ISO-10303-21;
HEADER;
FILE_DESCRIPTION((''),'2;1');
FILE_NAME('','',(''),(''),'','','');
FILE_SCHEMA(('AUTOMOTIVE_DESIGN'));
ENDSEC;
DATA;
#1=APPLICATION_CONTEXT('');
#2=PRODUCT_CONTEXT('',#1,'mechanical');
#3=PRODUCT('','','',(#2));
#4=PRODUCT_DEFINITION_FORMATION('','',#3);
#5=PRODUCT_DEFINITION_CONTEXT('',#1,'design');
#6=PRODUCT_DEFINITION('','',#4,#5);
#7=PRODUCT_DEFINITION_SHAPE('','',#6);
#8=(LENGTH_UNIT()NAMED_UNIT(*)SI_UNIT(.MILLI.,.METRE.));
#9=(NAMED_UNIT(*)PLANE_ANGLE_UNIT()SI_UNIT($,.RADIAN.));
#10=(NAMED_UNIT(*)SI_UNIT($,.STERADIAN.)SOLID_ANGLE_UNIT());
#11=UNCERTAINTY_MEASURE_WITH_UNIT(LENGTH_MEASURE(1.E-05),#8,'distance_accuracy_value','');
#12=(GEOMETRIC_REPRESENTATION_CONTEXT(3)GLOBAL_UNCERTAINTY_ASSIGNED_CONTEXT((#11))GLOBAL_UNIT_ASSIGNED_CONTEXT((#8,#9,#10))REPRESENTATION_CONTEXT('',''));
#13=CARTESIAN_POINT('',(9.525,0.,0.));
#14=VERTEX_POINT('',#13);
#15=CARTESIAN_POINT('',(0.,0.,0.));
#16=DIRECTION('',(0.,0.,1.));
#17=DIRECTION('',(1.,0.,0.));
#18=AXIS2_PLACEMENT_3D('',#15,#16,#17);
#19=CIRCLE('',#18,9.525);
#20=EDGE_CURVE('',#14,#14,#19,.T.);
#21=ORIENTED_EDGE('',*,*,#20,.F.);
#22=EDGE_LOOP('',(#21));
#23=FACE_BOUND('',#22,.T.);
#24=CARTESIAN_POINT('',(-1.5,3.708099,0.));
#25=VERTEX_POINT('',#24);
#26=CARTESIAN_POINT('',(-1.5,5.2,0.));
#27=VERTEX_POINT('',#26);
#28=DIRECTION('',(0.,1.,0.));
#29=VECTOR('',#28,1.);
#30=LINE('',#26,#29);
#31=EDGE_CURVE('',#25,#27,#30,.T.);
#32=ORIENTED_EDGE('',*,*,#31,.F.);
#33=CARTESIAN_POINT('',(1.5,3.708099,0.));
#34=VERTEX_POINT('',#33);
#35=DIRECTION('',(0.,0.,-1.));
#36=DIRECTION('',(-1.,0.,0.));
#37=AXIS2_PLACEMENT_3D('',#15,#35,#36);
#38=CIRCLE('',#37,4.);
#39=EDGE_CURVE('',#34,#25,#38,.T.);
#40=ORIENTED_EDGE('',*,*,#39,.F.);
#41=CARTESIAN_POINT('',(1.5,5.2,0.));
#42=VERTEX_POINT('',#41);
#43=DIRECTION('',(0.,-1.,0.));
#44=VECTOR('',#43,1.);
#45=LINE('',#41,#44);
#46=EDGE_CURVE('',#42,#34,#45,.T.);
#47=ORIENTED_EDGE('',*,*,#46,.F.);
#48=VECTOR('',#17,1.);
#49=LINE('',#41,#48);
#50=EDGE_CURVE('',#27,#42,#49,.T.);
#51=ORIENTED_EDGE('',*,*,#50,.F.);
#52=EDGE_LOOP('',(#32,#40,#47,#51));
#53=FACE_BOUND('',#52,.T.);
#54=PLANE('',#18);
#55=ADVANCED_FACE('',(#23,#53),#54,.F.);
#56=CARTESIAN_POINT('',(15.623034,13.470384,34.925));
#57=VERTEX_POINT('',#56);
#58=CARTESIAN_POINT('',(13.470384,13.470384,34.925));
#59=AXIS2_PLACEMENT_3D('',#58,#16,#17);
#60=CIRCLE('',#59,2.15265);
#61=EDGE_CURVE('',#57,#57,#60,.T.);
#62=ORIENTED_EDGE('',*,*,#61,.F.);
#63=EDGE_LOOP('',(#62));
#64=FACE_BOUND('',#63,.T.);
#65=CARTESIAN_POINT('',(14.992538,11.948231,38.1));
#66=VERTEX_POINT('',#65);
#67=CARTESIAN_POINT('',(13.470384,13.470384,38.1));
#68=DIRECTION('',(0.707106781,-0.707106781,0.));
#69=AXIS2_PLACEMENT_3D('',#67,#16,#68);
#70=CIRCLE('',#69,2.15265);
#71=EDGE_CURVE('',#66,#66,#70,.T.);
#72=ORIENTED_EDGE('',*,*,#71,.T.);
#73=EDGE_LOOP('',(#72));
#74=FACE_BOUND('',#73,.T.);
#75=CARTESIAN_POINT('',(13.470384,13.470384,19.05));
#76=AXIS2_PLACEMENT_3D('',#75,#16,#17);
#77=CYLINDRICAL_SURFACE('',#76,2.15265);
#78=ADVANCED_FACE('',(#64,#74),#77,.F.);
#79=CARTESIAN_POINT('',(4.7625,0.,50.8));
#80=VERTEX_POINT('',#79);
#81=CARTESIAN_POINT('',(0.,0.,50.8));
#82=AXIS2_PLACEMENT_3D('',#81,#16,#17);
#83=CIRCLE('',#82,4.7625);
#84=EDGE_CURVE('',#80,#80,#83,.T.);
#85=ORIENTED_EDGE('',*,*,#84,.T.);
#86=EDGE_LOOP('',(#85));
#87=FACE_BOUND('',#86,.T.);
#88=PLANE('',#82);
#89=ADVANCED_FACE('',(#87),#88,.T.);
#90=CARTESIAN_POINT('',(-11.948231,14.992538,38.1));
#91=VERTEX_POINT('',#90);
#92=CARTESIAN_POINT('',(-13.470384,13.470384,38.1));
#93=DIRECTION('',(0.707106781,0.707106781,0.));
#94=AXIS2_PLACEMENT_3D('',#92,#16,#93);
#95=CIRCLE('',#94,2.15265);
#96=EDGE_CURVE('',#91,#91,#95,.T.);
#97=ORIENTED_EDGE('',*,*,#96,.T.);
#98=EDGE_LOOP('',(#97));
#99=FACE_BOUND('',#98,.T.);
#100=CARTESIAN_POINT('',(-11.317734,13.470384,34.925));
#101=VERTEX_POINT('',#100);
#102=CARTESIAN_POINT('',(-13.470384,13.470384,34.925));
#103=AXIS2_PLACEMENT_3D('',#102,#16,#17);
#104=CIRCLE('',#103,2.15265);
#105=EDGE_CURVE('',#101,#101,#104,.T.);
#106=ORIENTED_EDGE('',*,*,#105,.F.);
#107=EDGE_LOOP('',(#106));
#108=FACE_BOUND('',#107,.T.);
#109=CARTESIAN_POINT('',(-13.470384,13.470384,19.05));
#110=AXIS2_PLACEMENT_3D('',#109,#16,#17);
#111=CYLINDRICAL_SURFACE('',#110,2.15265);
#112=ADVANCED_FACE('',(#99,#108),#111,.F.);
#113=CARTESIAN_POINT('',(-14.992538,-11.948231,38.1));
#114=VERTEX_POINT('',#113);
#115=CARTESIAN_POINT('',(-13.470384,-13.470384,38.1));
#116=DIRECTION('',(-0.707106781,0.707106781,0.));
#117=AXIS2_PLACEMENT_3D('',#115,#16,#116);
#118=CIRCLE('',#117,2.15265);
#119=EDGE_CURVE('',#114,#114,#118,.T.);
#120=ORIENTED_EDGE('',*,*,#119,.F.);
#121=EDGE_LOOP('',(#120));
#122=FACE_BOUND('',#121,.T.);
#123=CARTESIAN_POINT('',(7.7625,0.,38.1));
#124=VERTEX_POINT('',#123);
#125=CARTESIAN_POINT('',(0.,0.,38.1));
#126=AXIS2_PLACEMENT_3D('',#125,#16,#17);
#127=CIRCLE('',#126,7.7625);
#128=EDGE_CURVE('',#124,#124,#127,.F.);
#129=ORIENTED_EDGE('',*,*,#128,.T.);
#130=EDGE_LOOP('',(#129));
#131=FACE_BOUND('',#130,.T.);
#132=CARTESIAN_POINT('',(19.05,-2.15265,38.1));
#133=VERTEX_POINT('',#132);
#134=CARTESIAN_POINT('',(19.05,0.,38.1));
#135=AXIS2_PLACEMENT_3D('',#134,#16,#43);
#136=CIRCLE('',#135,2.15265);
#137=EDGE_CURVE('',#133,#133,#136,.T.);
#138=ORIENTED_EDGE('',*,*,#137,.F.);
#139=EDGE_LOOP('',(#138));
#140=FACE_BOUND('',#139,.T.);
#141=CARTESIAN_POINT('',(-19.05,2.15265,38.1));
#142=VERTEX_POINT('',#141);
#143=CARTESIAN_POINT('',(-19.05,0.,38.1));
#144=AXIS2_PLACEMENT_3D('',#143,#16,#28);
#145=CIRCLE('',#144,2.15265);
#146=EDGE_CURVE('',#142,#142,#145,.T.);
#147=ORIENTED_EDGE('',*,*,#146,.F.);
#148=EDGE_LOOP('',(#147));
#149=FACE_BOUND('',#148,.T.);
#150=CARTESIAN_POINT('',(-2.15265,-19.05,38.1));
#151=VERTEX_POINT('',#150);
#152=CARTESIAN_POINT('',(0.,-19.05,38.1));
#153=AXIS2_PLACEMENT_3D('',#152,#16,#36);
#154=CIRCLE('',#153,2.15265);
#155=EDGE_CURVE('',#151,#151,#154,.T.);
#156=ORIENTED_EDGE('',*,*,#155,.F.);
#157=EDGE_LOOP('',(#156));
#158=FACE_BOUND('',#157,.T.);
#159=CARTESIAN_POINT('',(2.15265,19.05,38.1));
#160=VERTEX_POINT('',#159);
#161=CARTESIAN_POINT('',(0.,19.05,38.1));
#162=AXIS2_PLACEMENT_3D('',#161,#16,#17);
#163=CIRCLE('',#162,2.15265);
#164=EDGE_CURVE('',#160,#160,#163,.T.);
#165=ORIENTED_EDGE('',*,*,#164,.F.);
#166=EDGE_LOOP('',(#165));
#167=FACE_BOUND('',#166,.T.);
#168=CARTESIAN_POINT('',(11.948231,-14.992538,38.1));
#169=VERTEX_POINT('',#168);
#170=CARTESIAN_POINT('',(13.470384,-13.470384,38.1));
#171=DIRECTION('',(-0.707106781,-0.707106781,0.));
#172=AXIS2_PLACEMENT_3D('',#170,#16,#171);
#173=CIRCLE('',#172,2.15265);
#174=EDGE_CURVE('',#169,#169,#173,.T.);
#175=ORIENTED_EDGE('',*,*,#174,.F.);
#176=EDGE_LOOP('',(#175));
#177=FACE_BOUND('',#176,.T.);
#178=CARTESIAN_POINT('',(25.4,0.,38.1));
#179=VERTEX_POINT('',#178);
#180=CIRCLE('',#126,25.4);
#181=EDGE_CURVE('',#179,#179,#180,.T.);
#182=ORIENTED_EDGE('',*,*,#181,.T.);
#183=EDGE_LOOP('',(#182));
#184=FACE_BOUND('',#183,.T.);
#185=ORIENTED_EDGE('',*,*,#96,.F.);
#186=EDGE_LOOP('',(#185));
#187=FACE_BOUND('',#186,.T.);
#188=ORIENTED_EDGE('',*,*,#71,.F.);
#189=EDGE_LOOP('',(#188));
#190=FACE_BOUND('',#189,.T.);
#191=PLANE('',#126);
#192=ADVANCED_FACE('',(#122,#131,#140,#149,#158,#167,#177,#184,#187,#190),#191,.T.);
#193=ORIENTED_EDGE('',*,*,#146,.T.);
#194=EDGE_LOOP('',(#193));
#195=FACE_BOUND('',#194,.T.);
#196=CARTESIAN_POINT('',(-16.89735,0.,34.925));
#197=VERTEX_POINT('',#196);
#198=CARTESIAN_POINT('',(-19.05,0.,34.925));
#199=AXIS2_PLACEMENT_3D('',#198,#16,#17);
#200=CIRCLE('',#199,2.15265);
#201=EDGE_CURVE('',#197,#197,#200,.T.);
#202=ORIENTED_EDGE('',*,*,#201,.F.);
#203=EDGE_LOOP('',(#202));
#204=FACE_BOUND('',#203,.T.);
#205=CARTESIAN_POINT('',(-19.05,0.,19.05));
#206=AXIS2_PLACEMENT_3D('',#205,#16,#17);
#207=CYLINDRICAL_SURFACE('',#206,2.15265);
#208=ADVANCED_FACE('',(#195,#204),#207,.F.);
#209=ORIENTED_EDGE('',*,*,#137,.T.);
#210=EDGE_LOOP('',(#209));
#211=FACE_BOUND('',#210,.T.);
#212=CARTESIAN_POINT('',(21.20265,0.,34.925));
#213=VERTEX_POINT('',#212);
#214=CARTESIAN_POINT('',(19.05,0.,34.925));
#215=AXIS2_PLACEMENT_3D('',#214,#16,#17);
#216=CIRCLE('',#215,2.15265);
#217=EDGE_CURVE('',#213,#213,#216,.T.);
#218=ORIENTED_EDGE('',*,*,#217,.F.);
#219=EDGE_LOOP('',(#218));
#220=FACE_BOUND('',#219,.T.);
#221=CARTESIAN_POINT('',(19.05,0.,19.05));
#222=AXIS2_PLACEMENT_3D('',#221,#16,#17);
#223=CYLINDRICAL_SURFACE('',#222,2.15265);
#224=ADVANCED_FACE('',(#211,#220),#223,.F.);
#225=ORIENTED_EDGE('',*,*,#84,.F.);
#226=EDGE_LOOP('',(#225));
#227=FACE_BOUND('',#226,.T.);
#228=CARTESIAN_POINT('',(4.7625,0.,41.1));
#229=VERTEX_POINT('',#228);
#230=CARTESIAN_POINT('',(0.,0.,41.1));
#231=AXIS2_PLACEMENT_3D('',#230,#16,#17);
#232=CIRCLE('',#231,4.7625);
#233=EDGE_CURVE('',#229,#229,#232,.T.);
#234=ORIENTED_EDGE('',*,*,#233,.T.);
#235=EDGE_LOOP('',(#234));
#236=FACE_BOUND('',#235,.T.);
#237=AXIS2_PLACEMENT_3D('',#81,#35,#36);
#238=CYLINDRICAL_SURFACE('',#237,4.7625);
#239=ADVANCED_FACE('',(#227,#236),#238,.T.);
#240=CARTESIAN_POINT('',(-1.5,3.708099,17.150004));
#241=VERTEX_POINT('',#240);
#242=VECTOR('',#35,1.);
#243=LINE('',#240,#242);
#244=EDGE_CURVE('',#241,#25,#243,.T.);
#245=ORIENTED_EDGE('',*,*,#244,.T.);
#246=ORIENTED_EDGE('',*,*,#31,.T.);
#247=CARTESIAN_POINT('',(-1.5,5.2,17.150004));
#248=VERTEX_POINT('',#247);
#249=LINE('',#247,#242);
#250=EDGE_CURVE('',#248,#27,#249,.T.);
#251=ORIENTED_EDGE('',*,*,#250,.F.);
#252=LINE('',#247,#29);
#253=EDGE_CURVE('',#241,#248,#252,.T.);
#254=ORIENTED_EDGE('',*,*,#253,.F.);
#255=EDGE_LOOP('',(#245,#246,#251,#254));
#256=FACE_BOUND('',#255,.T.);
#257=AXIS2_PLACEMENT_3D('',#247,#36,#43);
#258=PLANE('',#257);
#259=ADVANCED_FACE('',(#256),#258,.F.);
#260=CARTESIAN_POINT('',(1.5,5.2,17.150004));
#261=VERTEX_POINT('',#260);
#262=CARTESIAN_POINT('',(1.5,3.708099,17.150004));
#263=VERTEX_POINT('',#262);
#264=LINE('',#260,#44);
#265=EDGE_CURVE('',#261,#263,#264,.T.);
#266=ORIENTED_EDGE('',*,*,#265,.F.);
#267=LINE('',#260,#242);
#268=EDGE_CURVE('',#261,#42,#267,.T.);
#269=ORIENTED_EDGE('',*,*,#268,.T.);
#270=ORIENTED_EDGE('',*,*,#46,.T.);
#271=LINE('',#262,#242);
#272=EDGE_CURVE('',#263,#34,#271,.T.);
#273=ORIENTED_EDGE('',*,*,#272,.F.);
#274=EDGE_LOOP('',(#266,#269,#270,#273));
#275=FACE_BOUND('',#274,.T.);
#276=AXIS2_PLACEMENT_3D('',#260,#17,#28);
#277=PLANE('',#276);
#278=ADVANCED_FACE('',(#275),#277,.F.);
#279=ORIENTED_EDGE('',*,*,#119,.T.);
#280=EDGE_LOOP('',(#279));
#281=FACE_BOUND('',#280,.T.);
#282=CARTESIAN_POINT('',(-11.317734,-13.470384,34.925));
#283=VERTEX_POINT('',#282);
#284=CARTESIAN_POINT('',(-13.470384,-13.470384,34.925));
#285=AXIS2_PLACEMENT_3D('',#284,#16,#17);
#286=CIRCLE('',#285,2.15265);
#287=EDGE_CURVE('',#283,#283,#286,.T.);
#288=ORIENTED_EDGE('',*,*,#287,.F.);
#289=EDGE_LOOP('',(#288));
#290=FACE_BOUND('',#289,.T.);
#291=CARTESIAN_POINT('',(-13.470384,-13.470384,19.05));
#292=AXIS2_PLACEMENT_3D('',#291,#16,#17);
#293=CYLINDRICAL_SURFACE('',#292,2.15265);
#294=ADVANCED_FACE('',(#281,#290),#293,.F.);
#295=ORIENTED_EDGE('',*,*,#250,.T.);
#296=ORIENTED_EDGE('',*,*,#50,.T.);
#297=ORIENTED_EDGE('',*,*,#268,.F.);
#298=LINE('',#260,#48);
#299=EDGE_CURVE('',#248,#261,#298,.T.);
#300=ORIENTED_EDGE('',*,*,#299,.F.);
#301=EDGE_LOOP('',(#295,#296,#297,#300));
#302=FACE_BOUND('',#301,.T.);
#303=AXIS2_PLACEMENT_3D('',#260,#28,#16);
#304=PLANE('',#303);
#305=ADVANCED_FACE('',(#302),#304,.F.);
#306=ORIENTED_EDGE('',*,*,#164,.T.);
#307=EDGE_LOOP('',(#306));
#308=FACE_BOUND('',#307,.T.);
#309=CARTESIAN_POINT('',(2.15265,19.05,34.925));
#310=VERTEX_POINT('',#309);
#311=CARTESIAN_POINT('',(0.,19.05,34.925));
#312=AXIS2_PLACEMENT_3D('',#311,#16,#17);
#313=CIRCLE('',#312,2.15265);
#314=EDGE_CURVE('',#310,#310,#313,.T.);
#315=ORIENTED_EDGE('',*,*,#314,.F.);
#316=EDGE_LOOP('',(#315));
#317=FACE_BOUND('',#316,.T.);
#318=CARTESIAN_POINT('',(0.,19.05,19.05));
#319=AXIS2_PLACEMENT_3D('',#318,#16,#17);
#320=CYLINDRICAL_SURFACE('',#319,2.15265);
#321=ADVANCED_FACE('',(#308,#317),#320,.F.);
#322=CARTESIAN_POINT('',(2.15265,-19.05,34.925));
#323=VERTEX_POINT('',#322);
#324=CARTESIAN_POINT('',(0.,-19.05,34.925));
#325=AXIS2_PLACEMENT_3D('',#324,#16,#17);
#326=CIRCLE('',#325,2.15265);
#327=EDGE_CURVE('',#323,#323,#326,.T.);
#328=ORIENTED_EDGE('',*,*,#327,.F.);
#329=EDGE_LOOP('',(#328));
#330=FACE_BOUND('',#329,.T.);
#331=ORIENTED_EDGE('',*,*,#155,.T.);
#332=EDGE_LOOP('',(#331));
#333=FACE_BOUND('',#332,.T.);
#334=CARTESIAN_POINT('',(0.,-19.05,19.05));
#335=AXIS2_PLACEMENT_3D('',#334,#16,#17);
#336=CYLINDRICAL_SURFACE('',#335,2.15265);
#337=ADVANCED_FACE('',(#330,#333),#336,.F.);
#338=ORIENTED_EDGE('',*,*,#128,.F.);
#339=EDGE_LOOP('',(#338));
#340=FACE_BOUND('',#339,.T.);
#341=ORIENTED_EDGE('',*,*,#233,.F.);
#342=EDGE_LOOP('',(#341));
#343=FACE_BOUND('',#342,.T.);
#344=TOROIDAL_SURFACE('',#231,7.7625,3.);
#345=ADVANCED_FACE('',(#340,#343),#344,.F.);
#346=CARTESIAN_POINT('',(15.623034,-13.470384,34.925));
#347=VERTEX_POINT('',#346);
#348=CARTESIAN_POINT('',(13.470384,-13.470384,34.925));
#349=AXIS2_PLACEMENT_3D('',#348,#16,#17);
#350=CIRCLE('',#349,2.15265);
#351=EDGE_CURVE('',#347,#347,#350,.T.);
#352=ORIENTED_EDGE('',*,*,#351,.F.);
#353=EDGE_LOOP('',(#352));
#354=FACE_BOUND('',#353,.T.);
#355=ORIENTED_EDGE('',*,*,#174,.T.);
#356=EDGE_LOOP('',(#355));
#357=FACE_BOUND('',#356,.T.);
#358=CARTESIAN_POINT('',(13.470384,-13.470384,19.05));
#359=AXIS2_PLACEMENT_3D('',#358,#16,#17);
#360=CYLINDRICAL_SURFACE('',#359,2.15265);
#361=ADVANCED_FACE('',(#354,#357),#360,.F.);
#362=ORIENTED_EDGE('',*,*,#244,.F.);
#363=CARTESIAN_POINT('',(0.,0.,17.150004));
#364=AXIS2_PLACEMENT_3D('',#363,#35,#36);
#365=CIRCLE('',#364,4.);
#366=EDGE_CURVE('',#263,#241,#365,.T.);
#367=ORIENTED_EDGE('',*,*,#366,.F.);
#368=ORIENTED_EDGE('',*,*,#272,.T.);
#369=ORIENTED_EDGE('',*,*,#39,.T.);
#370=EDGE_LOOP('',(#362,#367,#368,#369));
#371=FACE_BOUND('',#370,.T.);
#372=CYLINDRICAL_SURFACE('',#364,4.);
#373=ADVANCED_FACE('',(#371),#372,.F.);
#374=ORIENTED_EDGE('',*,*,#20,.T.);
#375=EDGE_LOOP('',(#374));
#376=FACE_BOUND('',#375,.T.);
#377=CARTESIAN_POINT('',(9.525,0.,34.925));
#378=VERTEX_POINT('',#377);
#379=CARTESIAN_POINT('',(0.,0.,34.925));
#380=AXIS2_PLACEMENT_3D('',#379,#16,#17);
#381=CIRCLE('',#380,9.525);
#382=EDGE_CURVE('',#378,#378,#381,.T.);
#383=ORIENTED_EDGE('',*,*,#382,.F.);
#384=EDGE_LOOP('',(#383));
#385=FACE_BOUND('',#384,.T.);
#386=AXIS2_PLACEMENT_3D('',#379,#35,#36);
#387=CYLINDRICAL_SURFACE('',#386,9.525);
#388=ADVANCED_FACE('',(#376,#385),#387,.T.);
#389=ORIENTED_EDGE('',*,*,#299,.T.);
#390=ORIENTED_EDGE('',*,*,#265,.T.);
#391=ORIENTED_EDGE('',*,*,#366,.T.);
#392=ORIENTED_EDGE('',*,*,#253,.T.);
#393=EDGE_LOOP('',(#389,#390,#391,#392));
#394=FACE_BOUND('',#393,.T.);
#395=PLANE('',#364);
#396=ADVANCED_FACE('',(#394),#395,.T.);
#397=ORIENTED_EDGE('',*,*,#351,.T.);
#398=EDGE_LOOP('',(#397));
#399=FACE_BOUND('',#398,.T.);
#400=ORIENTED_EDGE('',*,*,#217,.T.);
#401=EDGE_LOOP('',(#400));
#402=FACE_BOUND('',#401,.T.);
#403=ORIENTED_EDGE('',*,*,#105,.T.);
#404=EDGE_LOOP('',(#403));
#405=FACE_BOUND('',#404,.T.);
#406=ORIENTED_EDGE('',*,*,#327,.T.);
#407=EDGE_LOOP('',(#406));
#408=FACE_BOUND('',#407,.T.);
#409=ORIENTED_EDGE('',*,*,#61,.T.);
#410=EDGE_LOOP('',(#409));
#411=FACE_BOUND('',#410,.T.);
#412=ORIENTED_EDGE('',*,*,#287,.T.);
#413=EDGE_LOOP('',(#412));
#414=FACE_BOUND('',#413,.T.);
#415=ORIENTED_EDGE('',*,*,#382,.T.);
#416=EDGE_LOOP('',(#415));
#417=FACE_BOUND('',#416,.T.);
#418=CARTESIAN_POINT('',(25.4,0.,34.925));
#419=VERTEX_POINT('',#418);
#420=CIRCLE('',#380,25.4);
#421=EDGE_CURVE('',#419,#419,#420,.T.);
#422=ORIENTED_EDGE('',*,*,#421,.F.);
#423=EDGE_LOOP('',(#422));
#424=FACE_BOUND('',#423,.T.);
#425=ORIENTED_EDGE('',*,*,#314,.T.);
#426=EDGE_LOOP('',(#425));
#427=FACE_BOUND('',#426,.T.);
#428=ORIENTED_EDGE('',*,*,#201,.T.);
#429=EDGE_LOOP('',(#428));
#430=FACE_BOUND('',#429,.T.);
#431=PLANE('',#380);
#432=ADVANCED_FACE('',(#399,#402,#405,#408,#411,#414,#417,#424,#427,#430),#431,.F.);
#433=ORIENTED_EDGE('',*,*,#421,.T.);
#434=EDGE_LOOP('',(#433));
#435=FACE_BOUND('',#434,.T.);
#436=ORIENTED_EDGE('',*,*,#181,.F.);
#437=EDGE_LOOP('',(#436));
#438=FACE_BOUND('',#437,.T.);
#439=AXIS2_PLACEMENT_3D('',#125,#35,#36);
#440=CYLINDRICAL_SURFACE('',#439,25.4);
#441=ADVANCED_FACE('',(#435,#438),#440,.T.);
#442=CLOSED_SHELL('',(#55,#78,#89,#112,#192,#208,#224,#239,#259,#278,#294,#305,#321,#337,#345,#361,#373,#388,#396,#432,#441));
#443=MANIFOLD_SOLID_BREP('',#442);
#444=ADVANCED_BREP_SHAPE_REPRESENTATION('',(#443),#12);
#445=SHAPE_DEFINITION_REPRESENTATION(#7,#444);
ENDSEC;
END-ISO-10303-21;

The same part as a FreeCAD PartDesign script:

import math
import FreeCAD as App
import Part
import Sketcher
from FreeCAD import Vector
Q = App.Units.Quantity


def edges_at(feature, points):
    """Names of the edges that pass closest to the given points."""
    edges = feature.Shape.Edges
    near = lambda p: min(range(len(edges)), key=lambda i: edges[i].distToShape(Part.Vertex(*p))[0])
    return sorted({f"Edge{near(p) + 1}" for p in points})

doc = App.newDocument("Part")
params = doc.addObject("Spreadsheet::Sheet", "Params")
for row, (alias, value) in enumerate([
    ("sketch1_diameter", "0.75 in"),
    ("pad1_length", "1.375 in"),
    ("sketch2_diameter", "2 in"),
    ("pad2_length", "0.125 in"),
    ("sketch3_diameter", "0.375 in"),
    ("pad3_length", "0.5 in"),
    ("pocket1_length", "0.75 in"),
    ("fillet_radius", "3 mm"),
    ("pocket2_length", "17.150004 mm"),
], start=1):
    params.set(f"A{row}", alias)
    params.set(f"B{row}", "=" + value)
    params.setAlias(f"B{row}", alias)

body = doc.addObject("PartDesign::Body", "Body")

# Sketch on XY plane
sketch1 = body.newObject("Sketcher::SketchObject", "Sketch")
sketch1.AttachmentSupport = (doc.getObject("XY_Plane"), [""])
sketch1.MapMode = "FlatFace"
sketch1.addGeometry(Part.Circle(Vector(0, 0, 0), Vector(0, 0, 1), 10), False)
sketch1.addConstraint([
    Sketcher.Constraint("Coincident", 0, 3, -1, 1),
    Sketcher.Constraint("Diameter", 0, Q("0.75 in")),
])
sketch1.setExpression("Constraints[1]", "Params.sketch1_diameter")
pad1 = body.newObject("PartDesign::Pad", "Pad")
pad1.Profile = sketch1
pad1.setExpression("Length", "Params.pad1_length")

# Sketch on XY plane
sketch2 = body.newObject("Sketcher::SketchObject", "Sketch001")
sketch2.AttachmentSupport = (doc.getObject("XY_Plane"), [""])
sketch2.MapMode = "FlatFace"
sketch2.AttachmentOffset = App.Placement(Vector(0, 0, 1.375 * 25.4), App.Rotation())
sketch2.addGeometry(Part.Circle(Vector(0, 0, 0), Vector(0, 0, 1), 25), False)
sketch2.addConstraint([
    Sketcher.Constraint("Coincident", 0, 3, -1, 1),
    Sketcher.Constraint("Diameter", 0, Q("2 in")),
])
sketch2.setExpression("Constraints[1]", "Params.sketch2_diameter")
pad2 = body.newObject("PartDesign::Pad", "Pad001")
pad2.Profile = sketch2
pad2.setExpression("Length", "Params.pad2_length")

# Sketch on XY plane
sketch3 = body.newObject("Sketcher::SketchObject", "Sketch002")
sketch3.AttachmentSupport = (doc.getObject("XY_Plane"), [""])
sketch3.MapMode = "FlatFace"
sketch3.AttachmentOffset = App.Placement(Vector(0, 0, 1.5 * 25.4), App.Rotation())
sketch3.addGeometry(Part.Circle(Vector(0, 0, 0), Vector(0, 0, 1), 4.8), False)
sketch3.addConstraint([
    Sketcher.Constraint("Coincident", 0, 3, -1, 1),
    Sketcher.Constraint("Diameter", 0, Q("0.375 in")),
])
sketch3.setExpression("Constraints[1]", "Params.sketch3_diameter")
pad3 = body.newObject("PartDesign::Pad", "Pad002")
pad3.Profile = sketch3
pad3.setExpression("Length", "Params.pad3_length")

# Sketch on XY plane
sketch4 = body.newObject("Sketcher::SketchObject", "Sketch003")
sketch4.AttachmentSupport = (doc.getObject("XY_Plane"), [""])
sketch4.MapMode = "FlatFace"
sketch4.AttachmentOffset = App.Placement(Vector(0, 0, 1.5 * 25.4), App.Rotation())
sketch4.addGeometry(Part.Circle(Vector(0, 19.1, 0), Vector(0, 0, 1), 2.2), False)
sketch4.addConstraint([
    Sketcher.Constraint("PointOnObject", 0, 3, -2),
    Sketcher.Constraint("Diameter", 0, Q("0.1695 in")),
    Sketcher.Constraint("DistanceY", -1, 1, 0, 3, Q("0.75 in")),
])
pocket1 = body.newObject("PartDesign::Pocket", "Pocket")
pocket1.Profile = sketch4
pocket1.setExpression("Length", "Params.pocket1_length")
doc.recompute()

polarpattern = body.newObject("PartDesign::PolarPattern", "PolarPattern")
polarpattern.Originals = [pocket1]
polarpattern.Axis = (doc.getObject("Z_Axis"), [""])
polarpattern.Angle = 360
polarpattern.Occurrences = 8
body.Tip = polarpattern
doc.recompute()

fillet = body.newObject("PartDesign::Fillet", "Fillet")
fillet.Base = (polarpattern, edges_at(polarpattern, [(-4.763, 0, 38.1)]))
fillet.setExpression("Radius", "Params.fillet_radius")

# Sketch on XY plane
sketch5 = body.newObject("Sketcher::SketchObject", "Sketch004")
sketch5.AttachmentSupport = (doc.getObject("XY_Plane"), [""])
sketch5.MapMode = "FlatFace"
sketch5.addGeometry([
    Part.LineSegment(Vector(-1.5, 5.2, 0), Vector(1.5, 5.2, 0)),
    Part.LineSegment(Vector(1.5, 5.2, 0), Vector(1.5, 3.7, 0)),
    Part.ArcOfCircle(Part.Circle(Vector(0, 0, 0), Vector(0, 0, 1), 4), math.radians(112), math.radians(428)),
    Part.LineSegment(Vector(-1.5, 3.7, 0), Vector(-1.5, 5.2, 0)),
], False)
sketch5.addConstraint([
    Sketcher.Constraint("Coincident", 0, 2, 1, 1),
    Sketcher.Constraint("Coincident", 1, 2, 2, 2),
    Sketcher.Constraint("Coincident", 2, 1, 3, 1),
    Sketcher.Constraint("Coincident", 3, 2, 0, 1),
    Sketcher.Constraint("Horizontal", 0),
    Sketcher.Constraint("Vertical", 1),
    Sketcher.Constraint("Vertical", 3),
    Sketcher.Constraint("Coincident", 2, 3, -1, 1),
    Sketcher.Constraint("Horizontal", 1, 2, 2, 1),
    Sketcher.Constraint("Radius", 2, Q("4 mm")),
    Sketcher.Constraint("DistanceX", 0, 1, 0, 2, Q("3 mm")),
    Sketcher.Constraint("DistanceY", 1, 2, 1, 1, Q("1.491901 mm")),
])
pocket2 = body.newObject("PartDesign::Pocket", "Pocket001")
pocket2.Profile = sketch5
pocket2.setExpression("Length", "Params.pocket2_length")
pocket2.Reversed = True

doc.recompute()
